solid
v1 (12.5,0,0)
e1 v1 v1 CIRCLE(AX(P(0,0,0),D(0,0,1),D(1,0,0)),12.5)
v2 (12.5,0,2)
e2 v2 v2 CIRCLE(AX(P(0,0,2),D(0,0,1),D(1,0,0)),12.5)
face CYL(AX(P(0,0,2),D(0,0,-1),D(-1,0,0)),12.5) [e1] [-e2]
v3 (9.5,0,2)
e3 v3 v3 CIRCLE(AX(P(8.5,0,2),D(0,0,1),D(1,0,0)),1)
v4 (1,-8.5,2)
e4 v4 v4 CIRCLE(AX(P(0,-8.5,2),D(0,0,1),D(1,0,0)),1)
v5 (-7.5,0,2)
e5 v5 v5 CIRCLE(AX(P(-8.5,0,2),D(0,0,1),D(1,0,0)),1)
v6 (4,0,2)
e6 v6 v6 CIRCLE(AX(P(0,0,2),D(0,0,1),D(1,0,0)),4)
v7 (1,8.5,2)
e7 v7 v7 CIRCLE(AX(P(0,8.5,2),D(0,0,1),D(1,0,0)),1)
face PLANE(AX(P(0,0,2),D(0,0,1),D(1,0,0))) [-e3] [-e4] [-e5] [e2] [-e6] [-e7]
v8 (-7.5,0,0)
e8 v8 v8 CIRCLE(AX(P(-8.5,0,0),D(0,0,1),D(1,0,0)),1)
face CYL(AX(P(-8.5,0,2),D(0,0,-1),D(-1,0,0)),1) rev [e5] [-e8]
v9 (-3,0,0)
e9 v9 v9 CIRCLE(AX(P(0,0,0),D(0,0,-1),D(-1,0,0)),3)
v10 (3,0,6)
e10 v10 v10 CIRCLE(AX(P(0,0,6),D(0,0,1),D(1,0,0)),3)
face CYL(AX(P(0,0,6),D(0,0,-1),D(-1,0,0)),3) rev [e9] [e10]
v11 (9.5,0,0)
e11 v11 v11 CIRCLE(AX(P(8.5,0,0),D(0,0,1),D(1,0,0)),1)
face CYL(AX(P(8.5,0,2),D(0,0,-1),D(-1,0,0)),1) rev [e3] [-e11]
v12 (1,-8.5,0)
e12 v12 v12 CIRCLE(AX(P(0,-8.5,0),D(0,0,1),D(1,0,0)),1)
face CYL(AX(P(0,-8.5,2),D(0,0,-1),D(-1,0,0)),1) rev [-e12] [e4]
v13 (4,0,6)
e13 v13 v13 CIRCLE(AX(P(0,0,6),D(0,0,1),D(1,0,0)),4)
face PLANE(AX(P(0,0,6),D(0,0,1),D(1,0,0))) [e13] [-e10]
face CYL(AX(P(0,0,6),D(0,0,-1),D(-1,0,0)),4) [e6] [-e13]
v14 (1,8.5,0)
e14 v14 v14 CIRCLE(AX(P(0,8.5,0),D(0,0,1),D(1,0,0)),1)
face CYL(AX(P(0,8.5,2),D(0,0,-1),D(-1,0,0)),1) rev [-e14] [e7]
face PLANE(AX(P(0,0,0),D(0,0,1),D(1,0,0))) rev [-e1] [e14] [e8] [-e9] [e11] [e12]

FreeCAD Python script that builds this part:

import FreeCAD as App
import Part
import Sketcher

V = App.Vector

doc = App.newDocument("Part")
body = doc.addObject("PartDesign::Body", "Body")

# Sketch on XY plane
sketch1 = body.newObject("Sketcher::SketchObject", "Sketch")
sketch1.AttachmentSupport = (doc.getObject("XY_Plane"), [""])
sketch1.MapMode = "FlatFace"
sketch1.addGeometry(Part.Circle(V(0, 0, 0), V(0, 0, 1), 12.5), False)
sketch1.addGeometry(Part.Circle(V(0, -8.5, 0), V(0, 0, 1), 1), False)
sketch1.addGeometry(Part.Circle(V(-8.5, 0, 0), V(0, 0, 1), 1), False)
sketch1.addGeometry(Part.Circle(V(8.5, 0, 0), V(0, 0, 1), 1), False)
sketch1.addGeometry(Part.Circle(V(0, 8.5, 0), V(0, 0, 1), 1), False)
sketch1.addConstraint(Sketcher.Constraint("Coincident", 0, 3, -1, 1))
sketch1.addConstraint(Sketcher.Constraint("Equal", 1, 2))
sketch1.addConstraint(Sketcher.Constraint("Equal", 2, 3))
sketch1.addConstraint(Sketcher.Constraint("Equal", 3, 4))
sketch1.addConstraint(Sketcher.Constraint("Symmetric", 2, 3, 3, 3, -1, 1))
sketch1.addConstraint(Sketcher.Constraint("Symmetric", 1, 3, 4, 3, -1, 1))
sketch1.addConstraint(Sketcher.Constraint("PointOnObject", 1, 3, -2))
sketch1.addConstraint(Sketcher.Constraint("PointOnObject", 2, 3, -1))
sketch1.addConstraint(Sketcher.Constraint("Diameter", 0, 25.0))
sketch1.addConstraint(Sketcher.Constraint("Diameter", 1, 2.0))
sketch1.addConstraint(Sketcher.Constraint("DistanceX", 2, 3, 3, 3, 17.0))
sketch1.addConstraint(Sketcher.Constraint("DistanceY", 1, 3, 4, 3, 17.0))
pad1 = body.newObject("PartDesign::Pad", "Pad")
pad1.Profile = sketch1
pad1.Length = 2

# Sketch on XY plane
sketch2 = body.newObject("Sketcher::SketchObject", "Sketch001")
sketch2.AttachmentSupport = (doc.getObject("XY_Plane"), [""])
sketch2.MapMode = "FlatFace"
sketch2.AttachmentOffset = App.Placement(V(0, 0, 2), App.Rotation())
sketch2.addGeometry(Part.Circle(V(0, 0, 0), V(0, 0, 1), 4), False)
sketch2.addGeometry(Part.Circle(V(0, 0, 0), V(0, 0, 1), 3), False)
sketch2.addConstraint(Sketcher.Constraint("Coincident", 0, 3, -1, 1))
sketch2.addConstraint(Sketcher.Constraint("Coincident", 1, 3, -1, 1))
sketch2.addConstraint(Sketcher.Constraint("Diameter", 0, 8.0))
sketch2.addConstraint(Sketcher.Constraint("Diameter", 1, 6.0))
pad2 = body.newObject("PartDesign::Pad", "Pad001")
pad2.Profile = sketch2
pad2.Length = 4

# Sketch on XY plane
sketch3 = body.newObject("Sketcher::SketchObject", "Sketch002")
sketch3.AttachmentSupport = (doc.getObject("XY_Plane"), [""])
sketch3.MapMode = "FlatFace"
sketch3.addGeometry(Part.Circle(V(0, 0, 0), V(0, 0, 1), 3), False)
sketch3.addConstraint(Sketcher.Constraint("Coincident", 0, 3, -1, 1))
sketch3.addConstraint(Sketcher.Constraint("Diameter", 0, 6.0))
pocket1 = body.newObject("PartDesign::Pocket", "Pocket")
pocket1.Profile = sketch3
pocket1.Type = "ThroughAll"
pocket1.Reversed = True

doc.recompute()
